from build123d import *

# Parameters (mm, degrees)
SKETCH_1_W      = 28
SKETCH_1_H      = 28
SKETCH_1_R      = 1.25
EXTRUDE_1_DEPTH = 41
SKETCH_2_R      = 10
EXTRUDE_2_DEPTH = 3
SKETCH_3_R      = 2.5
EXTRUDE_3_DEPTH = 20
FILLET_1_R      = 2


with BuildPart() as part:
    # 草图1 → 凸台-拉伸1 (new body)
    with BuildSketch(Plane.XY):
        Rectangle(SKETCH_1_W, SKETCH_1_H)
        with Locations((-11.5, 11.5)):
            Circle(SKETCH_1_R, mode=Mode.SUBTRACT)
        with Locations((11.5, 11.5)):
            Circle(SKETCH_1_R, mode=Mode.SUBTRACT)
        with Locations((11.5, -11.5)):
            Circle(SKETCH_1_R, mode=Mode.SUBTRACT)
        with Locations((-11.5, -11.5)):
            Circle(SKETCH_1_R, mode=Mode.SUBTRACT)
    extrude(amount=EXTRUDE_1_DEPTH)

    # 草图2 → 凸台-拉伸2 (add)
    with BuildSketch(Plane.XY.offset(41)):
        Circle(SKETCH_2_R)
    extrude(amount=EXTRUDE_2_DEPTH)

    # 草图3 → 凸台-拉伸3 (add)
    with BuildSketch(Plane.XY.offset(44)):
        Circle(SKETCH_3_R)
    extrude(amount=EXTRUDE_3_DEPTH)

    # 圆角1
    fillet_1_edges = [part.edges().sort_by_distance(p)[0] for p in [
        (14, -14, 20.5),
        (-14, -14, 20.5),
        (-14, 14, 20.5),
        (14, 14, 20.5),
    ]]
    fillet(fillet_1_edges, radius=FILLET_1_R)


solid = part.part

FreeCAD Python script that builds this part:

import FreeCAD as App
import Part
import Sketcher

V = App.Vector
Q = App.Units.Quantity


def edges_at(feature, points):
    """Names of the edges that pass closest to the given points."""
    edges = feature.Shape.Edges
    near = lambda p: min(range(len(edges)), key=lambda i: edges[i].distToShape(Part.Vertex(*p))[0])
    return sorted({f"Edge{near(p) + 1}" for p in points})

doc = App.newDocument("Part")
body = doc.addObject("PartDesign::Body", "Body")

sketch1 = body.newObject("Sketcher::SketchObject", "Sketch")
sketch1.AttachmentSupport = (doc.getObject("XY_Plane"), [""])
sketch1.MapMode = "FlatFace"
sketch1.addGeometry([
    Part.LineSegment(V(-14, 14, 0), V(-14, -14, 0)),
    Part.LineSegment(V(-14, -14, 0), V(14, -14, 0)),
    Part.LineSegment(V(14, -14, 0), V(14, 14, 0)),
    Part.LineSegment(V(14, 14, 0), V(-14, 14, 0)),
    Part.Circle(V(-11.5, -11.5, 0), V(0, 0, 1), 1.2),
    Part.Circle(V(11.5, -11.5, 0), V(0, 0, 1), 1.2),
    Part.Circle(V(-11.5, 11.5, 0), V(0, 0, 1), 1.2),
    Part.Circle(V(11.5, 11.5, 0), V(0, 0, 1), 1.2),
], False)
sketch1.addConstraint([
    Sketcher.Constraint("Coincident", 0, 2, 1, 1),
    Sketcher.Constraint("Coincident", 1, 2, 2, 1),
    Sketcher.Constraint("Coincident", 2, 2, 3, 1),
    Sketcher.Constraint("Coincident", 3, 2, 0, 1),
    Sketcher.Constraint("Vertical", 0),
    Sketcher.Constraint("Horizontal", 1),
    Sketcher.Constraint("Vertical", 2),
    Sketcher.Constraint("Horizontal", 3),
    Sketcher.Constraint("Equal", 4, 5),
    Sketcher.Constraint("Equal", 5, 6),
    Sketcher.Constraint("Equal", 6, 7),
    Sketcher.Constraint("Symmetric", 5, 3, 6, 3, -1, 1),
    Sketcher.Constraint("Symmetric", 4, 3, 7, 3, -1, 1),
    Sketcher.Constraint("Symmetric", 0, 2, 2, 2, -1, 1),
    Sketcher.Constraint("Symmetric", 4, 3, 5, 3, -2),
    Sketcher.Constraint("Equal", 3, 0),
    Sketcher.Constraint("Diameter", 4, Q("2.5 mm")),
    Sketcher.Constraint("DistanceX", 1, 1, 1, 2, Q("28 mm")),
    Sketcher.Constraint("DistanceX", 4, 3, 5, 3, Q("23 mm")),
    Sketcher.Constraint("DistanceY", 4, 3, 6, 3, Q("23 mm")),
])
pad1 = body.newObject("PartDesign::Pad", "Pad")
pad1.Profile = sketch1
pad1.Length = 41

sketch2 = body.newObject("Sketcher::SketchObject", "Sketch001")
sketch2.AttachmentSupport = (doc.getObject("XY_Plane"), [""])
sketch2.MapMode = "FlatFace"
sketch2.AttachmentOffset = App.Placement(V(0, 0, 41), App.Rotation())
sketch2.addGeometry(Part.Circle(V(0, 0, 0), V(0, 0, 1), 10), False)
sketch2.addConstraint([
    Sketcher.Constraint("Coincident", 0, 3, -1, 1),
    Sketcher.Constraint("Diameter", 0, Q("20 mm")),
])
pad2 = body.newObject("PartDesign::Pad", "Pad001")
pad2.Profile = sketch2
pad2.Length = 3

sketch3 = body.newObject("Sketcher::SketchObject", "Sketch002")
sketch3.AttachmentSupport = (doc.getObject("XY_Plane"), [""])
sketch3.MapMode = "FlatFace"
sketch3.AttachmentOffset = App.Placement(V(0, 0, 44), App.Rotation())
sketch3.addGeometry(Part.Circle(V(0, 0, 0), V(0, 0, 1), 2.5), False)
sketch3.addConstraint([
    Sketcher.Constraint("Coincident", 0, 3, -1, 1),
    Sketcher.Constraint("Diameter", 0, Q("5 mm")),
])
pad3 = body.newObject("PartDesign::Pad", "Pad002")
pad3.Profile = sketch3
pad3.Length = 20
doc.recompute()

fillet = body.newObject("PartDesign::Fillet", "Fillet")
fillet.Base = (pad3, edges_at(pad3, [
    (14, -14, 20.5),
    (-14, -14, 20.5),
    (-14, 14, 20.5),
    (14, 14, 20.5),
]))
fillet.Radius = 2

doc.recompute()
